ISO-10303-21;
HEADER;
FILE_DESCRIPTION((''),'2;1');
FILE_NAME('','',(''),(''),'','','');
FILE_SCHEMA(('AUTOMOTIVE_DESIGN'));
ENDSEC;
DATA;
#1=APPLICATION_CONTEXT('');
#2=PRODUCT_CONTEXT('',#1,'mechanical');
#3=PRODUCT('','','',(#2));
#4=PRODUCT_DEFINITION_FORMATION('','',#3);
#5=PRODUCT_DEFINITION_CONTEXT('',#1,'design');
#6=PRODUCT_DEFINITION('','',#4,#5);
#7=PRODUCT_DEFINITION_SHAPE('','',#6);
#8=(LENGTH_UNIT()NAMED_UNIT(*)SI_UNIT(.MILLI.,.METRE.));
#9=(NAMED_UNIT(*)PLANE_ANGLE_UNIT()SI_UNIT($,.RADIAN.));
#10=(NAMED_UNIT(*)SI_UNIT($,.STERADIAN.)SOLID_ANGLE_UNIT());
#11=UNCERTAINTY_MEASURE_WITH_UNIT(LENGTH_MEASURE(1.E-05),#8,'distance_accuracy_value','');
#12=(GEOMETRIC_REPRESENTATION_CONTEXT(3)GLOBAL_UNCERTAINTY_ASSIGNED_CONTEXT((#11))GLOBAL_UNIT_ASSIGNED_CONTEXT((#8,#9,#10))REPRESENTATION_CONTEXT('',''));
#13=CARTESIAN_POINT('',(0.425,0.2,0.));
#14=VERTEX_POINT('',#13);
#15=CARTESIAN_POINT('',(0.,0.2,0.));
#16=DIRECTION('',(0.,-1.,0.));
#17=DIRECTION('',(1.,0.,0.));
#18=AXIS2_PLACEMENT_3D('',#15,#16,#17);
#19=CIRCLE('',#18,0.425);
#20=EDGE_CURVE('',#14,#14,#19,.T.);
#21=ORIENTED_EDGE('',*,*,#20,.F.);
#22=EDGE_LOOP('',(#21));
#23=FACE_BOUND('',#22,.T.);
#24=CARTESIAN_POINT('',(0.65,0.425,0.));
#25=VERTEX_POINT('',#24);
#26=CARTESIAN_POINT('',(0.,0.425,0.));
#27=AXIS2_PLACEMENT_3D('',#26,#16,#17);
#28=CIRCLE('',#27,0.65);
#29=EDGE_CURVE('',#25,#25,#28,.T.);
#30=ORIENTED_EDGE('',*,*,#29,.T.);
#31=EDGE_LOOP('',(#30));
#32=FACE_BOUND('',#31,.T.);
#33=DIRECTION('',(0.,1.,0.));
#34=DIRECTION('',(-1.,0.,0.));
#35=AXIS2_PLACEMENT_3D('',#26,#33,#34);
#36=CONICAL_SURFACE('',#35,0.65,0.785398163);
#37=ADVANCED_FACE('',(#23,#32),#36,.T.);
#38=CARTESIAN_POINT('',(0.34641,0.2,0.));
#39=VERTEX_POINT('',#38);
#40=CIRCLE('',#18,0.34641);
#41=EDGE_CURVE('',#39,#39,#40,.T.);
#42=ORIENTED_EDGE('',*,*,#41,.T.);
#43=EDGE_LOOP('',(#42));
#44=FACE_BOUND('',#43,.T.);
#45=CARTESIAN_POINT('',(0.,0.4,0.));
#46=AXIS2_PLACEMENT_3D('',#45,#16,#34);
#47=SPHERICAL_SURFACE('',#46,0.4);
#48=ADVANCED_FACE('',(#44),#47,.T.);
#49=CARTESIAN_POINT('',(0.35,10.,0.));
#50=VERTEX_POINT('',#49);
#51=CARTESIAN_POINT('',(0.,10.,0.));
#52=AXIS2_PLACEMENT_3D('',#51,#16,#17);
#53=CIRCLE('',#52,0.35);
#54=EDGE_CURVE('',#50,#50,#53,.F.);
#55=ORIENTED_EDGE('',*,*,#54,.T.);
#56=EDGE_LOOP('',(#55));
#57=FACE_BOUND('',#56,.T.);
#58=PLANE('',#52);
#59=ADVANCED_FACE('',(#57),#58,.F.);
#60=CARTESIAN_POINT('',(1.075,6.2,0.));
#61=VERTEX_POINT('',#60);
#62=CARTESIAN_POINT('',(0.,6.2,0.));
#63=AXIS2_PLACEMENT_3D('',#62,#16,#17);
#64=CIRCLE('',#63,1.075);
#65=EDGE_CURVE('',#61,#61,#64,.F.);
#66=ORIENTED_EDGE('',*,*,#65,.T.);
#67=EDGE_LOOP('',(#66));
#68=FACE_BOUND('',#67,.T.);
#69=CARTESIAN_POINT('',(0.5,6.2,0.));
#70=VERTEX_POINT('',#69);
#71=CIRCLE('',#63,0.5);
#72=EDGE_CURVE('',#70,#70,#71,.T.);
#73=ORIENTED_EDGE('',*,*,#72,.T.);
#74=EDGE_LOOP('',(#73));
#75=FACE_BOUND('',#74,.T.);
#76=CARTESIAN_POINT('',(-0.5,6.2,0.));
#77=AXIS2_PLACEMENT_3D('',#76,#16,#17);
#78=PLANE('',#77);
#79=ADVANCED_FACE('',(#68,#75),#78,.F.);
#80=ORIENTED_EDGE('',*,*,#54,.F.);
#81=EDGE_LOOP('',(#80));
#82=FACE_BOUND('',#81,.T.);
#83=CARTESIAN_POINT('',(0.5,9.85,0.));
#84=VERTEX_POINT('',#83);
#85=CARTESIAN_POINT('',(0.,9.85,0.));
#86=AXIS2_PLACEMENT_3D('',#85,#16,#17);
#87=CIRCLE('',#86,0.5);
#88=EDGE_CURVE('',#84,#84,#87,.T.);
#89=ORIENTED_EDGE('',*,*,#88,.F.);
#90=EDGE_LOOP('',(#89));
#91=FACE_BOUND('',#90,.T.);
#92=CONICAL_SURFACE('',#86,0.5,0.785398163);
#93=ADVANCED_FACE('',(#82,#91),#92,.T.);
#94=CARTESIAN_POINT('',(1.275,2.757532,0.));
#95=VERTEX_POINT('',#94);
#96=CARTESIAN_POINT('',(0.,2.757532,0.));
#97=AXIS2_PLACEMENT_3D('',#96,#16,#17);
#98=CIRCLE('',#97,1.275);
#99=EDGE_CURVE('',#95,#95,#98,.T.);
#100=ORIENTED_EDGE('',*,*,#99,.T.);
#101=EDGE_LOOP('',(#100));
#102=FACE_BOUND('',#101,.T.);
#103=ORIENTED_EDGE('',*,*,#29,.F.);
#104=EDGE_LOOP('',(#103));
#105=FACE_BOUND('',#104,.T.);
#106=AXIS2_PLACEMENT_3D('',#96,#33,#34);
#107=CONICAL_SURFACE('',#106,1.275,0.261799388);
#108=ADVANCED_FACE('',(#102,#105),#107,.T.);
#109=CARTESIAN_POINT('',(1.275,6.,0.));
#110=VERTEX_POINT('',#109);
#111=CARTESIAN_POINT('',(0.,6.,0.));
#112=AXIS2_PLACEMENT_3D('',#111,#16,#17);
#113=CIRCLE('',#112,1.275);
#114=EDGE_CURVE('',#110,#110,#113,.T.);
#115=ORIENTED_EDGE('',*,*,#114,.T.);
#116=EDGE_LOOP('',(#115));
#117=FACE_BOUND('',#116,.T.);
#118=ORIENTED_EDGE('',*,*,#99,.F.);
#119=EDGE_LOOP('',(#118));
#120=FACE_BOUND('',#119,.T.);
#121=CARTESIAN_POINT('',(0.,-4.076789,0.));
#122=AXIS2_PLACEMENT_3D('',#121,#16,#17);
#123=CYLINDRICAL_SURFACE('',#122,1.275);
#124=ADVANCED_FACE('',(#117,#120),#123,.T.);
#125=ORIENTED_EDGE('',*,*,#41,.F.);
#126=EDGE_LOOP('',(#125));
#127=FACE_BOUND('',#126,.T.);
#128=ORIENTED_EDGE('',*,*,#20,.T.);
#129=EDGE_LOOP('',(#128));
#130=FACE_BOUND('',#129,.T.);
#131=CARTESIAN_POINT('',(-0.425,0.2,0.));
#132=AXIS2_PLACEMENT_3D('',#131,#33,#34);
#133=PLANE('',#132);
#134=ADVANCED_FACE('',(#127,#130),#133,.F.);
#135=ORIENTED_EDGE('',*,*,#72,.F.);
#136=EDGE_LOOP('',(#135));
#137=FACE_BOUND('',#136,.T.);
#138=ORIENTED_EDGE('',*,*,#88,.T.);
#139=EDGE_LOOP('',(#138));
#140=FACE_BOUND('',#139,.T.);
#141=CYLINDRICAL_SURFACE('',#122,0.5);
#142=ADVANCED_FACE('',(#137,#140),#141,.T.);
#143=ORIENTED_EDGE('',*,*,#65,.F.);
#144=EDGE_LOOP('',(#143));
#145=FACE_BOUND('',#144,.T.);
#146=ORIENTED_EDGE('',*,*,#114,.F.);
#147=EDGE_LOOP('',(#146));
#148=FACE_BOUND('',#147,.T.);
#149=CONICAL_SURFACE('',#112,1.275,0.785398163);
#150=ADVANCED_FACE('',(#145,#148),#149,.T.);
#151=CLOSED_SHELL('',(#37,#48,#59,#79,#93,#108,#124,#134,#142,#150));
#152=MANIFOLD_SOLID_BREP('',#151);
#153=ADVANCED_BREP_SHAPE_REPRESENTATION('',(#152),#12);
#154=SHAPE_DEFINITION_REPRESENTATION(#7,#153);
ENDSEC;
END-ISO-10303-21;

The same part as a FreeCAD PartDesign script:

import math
import FreeCAD as App
import Part
import Sketcher
from FreeCAD import Vector
Q = App.Units.Quantity


def edges_at(feature, points):
    """Names of the edges that pass closest to the given points."""
    edges = feature.Shape.Edges
    near = lambda p: min(range(len(edges)), key=lambda i: edges[i].distToShape(Part.Vertex(*p))[0])
    return sorted({f"Edge{near(p) + 1}" for p in points})

doc = App.newDocument("Part")
body = doc.addObject("PartDesign::Body", "Body")

# Sketch on XY plane
sketch1 = body.newObject("Sketcher::SketchObject", "Sketch")
sketch1.AttachmentSupport = (doc.getObject("XY_Plane"), [""])
sketch1.MapMode = "FlatFace"
sketch1.addGeometry([
    Part.LineSegment(Vector(0, 10, 0), Vector(-0.5, 10, 0)),  # 0
    Part.LineSegment(Vector(-0.5, 10, 0), Vector(-0.5, 6.2, 0)),  # 1
    Part.LineSegment(Vector(-0.5, 6.2, 0), Vector(-1.275, 6.2, 0)),  # 2
    Part.LineSegment(Vector(-1.275, 6.2, 0), Vector(-1.275, 2.757532, 0)),  # 3
    Part.LineSegment(Vector(-1.275, 2.757532, 0), Vector(-0.65, 0.425, 0)),  # 4
    Part.LineSegment(Vector(-0.65, 0.425, 0), Vector(-0.425, 0.2, 0)),  # 5
    Part.LineSegment(Vector(-0.425, 0.2, 0), Vector(-0.34641, 0.2, 0)),  # 6
    Part.ArcOfCircle(Part.Circle(Vector(0, 0.4, 0), Vector(0, 0, 1), 0.4), math.radians(-150), math.radians(-90)),  # 7
    Part.LineSegment(Vector(0, 0, 0), Vector(0, 10, 0)),  # 8
], False)
sketch1.addConstraint([
    Sketcher.Constraint("Coincident", 0, 2, 1, 1),
    Sketcher.Constraint("Coincident", 1, 2, 2, 1),
    Sketcher.Constraint("Coincident", 2, 2, 3, 1),
    Sketcher.Constraint("Coincident", 3, 2, 4, 1),
    Sketcher.Constraint("Coincident", 4, 2, 5, 1),
    Sketcher.Constraint("Coincident", 5, 2, 6, 1),
    Sketcher.Constraint("Coincident", 6, 2, 7, 1),
    Sketcher.Constraint("Coincident", 7, 2, 8, 1),
    Sketcher.Constraint("Coincident", 8, 2, 0, 1),
    Sketcher.Constraint("Horizontal", 0),
    Sketcher.Constraint("Vertical", 1),
    Sketcher.Constraint("Horizontal", 2),
    Sketcher.Constraint("Vertical", 3),
    Sketcher.Constraint("Horizontal", 6),
    Sketcher.Constraint("Vertical", 8),
    Sketcher.Constraint("Coincident", 7, 2, -1, 1),
    Sketcher.Constraint("PointOnObject", 7, 3, -2),
    Sketcher.Constraint("Radius", 7, Q("0.4 mm")),
    Sketcher.Constraint("DistanceY", 8, 1, 8, 2, Q("10 mm")),
    Sketcher.Constraint("Angle", 4, Q("-75 deg")),
    Sketcher.Constraint("Angle", 5, Q("-45 deg")),
    Sketcher.Constraint("DistanceX", 0, 2, 0, 1, Q("0.5 mm")),
    Sketcher.Constraint("DistanceY", 1, 2, 1, 1, Q("3.8 mm")),
    Sketcher.Constraint("DistanceY", 5, 2, 1, 2, Q("6 mm")),
    Sketcher.Constraint("DistanceX", 2, 2, 2, 1, Q("0.775 mm")),
    Sketcher.Constraint("DistanceX", 4, 2, -1, 1, Q("0.65 mm")),
    Sketcher.Constraint("DistanceX", 3, 2, 5, 2, Q("0.85 mm")),
])
revolution = body.newObject("PartDesign::Revolution", "Revolution")
revolution.Profile = sketch1
revolution.ReferenceAxis = (sketch1, ["V_Axis"])
revolution.Angle = 360
doc.recompute()

chamfer = body.newObject("PartDesign::Chamfer", "Chamfer")
chamfer.Base = (revolution, edges_at(revolution, [(-0.5, 10, 0)]))
chamfer.Size = 0.15
doc.recompute()

chamfer2 = body.newObject("PartDesign::Chamfer", "Chamfer001")
chamfer2.Base = (chamfer, edges_at(chamfer, [(-1.275, 6.2, 0)]))
chamfer2.Size = 0.2

doc.recompute()
